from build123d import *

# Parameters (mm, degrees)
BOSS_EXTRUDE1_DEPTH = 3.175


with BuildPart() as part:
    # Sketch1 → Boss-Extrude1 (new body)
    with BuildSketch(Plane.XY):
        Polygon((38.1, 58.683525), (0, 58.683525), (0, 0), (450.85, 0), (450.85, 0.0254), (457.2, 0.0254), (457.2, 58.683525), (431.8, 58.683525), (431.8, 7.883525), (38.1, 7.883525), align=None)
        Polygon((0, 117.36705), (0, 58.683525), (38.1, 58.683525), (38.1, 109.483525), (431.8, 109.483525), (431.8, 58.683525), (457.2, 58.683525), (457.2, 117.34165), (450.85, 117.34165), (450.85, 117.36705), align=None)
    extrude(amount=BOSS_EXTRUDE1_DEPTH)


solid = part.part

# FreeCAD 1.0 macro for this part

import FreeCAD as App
import Part
import Sketcher

V = App.Vector
Q = App.Units.Quantity


def add_polygon(sketch, points):
    """Adds a closed chain of lines whose ends are joined by coincident constraints."""
    first, n = sketch.GeometryCount, len(points)
    for a, b in zip(points, points[1:] + points[:1]):
        sketch.addGeometry(Part.LineSegment(App.Vector(*a, 0), App.Vector(*b, 0)), False)
    for i in range(n):
        sketch.addConstraint(Sketcher.Constraint("Coincident", first + i, 2, first + (i + 1) % n, 1))

doc = App.newDocument("Part")
body = doc.addObject("PartDesign::Body", "Body")

sketch1 = body.newObject("Sketcher::SketchObject", "Sketch")
sketch1.AttachmentSupport = (doc.getObject("XY_Plane"), [""])
sketch1.MapMode = "FlatFace"
add_polygon(sketch1, [(0, 0), (450.85, 0), (450.85, 0.025), (457.2, 0.025), (457.2, 117.342), (450.85, 117.342), (450.85, 117.367), (0, 117.367)])
add_polygon(sketch1, [(431.8, 7.884), (38.1, 7.884), (38.1, 109.484), (431.8, 109.484)])
sketch1.addConstraint([
    Sketcher.Constraint("Horizontal", 0),
    Sketcher.Constraint("Vertical", 1),
    Sketcher.Constraint("Horizontal", 2),
    Sketcher.Constraint("Vertical", 3),
    Sketcher.Constraint("Horizontal", 4),
    Sketcher.Constraint("Vertical", 5),
    Sketcher.Constraint("Horizontal", 6),
    Sketcher.Constraint("Vertical", 7),
    Sketcher.Constraint("Horizontal", 8),
    Sketcher.Constraint("Vertical", 9),
    Sketcher.Constraint("Horizontal", 10),
    Sketcher.Constraint("Vertical", 11),
    Sketcher.Constraint("Coincident", 7, 2, -1, 1),
    Sketcher.Constraint("Vertical", 1, 2, 4, 2),
    Sketcher.Constraint("Equal", 1, 5),
    Sketcher.Constraint("DistanceY", 9, 1, 9, 2, Q("4 in")),
    Sketcher.Constraint("DistanceX", 8, 2, 8, 1, Q("15.5 in")),
    Sketcher.Constraint("DistanceX", -1, 1, 2, 2, Q("18 in")),
    Sketcher.Constraint("DistanceX", -1, 1, 10, 2, Q("17 in")),
    Sketcher.Constraint("DistanceX", 0, 1, 0, 2, Q("17.75 in")),
    Sketcher.Constraint("DistanceY", 1, 1, 1, 2, Q("0.001 in")),
    Sketcher.Constraint("DistanceY", 3, 1, 3, 2, Q("117.31625 mm")),
    Sketcher.Constraint("DistanceY", -1, 1, 8, 2, Q("7.883525 mm")),
])
pad1 = body.newObject("PartDesign::Pad", "Pad")
pad1.Profile = sketch1
pad1.Length = Q("0.125 in")

doc.recompute()
